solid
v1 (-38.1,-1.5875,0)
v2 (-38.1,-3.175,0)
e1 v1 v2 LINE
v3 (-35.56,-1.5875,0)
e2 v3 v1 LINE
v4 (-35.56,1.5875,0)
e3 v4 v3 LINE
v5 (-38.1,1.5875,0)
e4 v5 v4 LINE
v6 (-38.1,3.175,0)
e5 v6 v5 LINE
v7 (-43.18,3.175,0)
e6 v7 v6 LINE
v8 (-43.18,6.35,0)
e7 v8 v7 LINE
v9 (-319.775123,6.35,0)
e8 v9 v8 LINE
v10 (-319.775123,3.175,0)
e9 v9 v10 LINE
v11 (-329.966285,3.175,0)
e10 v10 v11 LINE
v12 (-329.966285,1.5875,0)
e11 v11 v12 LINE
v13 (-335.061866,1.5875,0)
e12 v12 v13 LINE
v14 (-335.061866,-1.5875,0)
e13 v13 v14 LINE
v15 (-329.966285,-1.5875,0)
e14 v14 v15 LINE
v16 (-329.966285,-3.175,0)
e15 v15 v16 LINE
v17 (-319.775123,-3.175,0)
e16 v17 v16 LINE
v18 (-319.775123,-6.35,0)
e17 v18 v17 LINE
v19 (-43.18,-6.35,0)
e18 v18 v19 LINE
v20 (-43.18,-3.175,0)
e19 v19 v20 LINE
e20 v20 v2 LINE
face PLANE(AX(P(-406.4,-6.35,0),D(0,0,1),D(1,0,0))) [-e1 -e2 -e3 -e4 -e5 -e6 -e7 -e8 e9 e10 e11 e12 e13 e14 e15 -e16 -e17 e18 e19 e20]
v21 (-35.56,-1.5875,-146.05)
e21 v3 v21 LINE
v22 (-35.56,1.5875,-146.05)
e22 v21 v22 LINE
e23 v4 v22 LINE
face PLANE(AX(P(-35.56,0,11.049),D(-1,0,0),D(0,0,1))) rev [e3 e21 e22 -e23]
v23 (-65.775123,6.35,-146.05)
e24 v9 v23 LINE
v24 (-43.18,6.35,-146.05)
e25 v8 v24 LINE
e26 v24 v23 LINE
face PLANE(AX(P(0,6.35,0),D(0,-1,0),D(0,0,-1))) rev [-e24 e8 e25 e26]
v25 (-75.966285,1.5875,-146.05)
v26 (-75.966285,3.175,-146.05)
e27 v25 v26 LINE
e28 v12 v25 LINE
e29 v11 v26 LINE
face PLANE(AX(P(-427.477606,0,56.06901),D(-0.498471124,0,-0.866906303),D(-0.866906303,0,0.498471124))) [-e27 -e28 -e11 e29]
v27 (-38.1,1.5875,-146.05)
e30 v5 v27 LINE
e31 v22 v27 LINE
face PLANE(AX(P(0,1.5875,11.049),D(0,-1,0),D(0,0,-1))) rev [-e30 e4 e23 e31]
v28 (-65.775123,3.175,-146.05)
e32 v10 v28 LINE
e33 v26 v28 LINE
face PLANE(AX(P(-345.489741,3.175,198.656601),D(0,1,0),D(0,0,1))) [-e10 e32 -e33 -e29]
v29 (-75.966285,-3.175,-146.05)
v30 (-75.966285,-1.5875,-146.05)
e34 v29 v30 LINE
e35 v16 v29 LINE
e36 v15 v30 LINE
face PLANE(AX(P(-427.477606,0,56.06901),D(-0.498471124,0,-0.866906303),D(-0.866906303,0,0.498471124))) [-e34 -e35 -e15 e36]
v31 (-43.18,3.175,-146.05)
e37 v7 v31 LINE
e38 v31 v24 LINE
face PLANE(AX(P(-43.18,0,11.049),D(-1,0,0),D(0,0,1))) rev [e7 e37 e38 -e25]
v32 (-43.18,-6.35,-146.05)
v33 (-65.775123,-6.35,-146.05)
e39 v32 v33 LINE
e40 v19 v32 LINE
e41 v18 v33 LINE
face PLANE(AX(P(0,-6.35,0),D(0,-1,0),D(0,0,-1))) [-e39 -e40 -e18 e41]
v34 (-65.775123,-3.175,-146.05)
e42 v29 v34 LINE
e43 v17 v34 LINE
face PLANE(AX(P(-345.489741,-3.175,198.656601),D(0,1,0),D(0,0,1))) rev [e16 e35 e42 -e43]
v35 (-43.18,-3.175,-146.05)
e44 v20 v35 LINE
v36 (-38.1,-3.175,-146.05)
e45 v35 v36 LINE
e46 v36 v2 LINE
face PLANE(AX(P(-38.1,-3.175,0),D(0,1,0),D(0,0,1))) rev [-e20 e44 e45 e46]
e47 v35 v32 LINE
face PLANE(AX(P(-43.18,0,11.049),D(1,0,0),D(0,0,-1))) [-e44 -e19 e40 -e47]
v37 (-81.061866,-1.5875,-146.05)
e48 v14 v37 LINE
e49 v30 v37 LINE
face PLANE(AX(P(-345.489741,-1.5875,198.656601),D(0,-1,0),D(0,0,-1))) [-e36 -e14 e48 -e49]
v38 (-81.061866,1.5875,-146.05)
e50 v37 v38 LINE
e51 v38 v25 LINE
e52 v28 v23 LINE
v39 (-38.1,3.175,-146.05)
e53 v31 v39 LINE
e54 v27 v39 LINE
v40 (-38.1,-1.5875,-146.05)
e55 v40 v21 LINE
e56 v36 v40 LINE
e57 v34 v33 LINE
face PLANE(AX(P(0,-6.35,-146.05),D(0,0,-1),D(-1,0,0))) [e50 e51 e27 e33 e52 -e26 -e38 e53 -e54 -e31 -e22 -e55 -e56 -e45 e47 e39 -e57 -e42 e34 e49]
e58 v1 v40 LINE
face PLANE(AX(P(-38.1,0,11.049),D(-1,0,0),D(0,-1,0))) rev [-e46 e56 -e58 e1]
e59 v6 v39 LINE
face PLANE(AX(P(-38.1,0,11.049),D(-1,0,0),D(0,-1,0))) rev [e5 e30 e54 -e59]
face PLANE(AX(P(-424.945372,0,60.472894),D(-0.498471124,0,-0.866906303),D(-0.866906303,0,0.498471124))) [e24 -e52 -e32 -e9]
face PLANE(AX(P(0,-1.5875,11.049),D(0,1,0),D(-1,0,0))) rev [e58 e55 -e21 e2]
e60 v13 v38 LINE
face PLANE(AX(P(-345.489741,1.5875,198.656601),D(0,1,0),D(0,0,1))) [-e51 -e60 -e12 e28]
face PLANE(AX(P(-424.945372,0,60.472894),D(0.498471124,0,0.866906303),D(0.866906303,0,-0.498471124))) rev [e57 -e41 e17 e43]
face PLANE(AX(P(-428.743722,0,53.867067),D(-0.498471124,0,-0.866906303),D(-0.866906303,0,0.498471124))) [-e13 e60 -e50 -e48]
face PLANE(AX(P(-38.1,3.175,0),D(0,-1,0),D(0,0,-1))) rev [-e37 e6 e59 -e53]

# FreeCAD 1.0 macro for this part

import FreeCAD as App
import Part
import Sketcher

V = App.Vector
Q = App.Units.Quantity

doc = App.newDocument("Part")
body = doc.addObject("PartDesign::Body", "Body")

# Sketch on XZ plane
sketch1 = body.newObject("Sketcher::SketchObject", "Sketch")
sketch1.AttachmentSupport = (doc.getObject("XZ_Plane"), [""])
sketch1.MapMode = "FlatFace"
sketch1.addGeometry([
    Part.LineSegment(V(-406, 0, 0), V(0, 0, 0)),
    Part.LineSegment(V(0, 0, 0), V(0, -146, 0)),
    Part.LineSegment(V(0, -146, 0), V(-152, -146, 0)),
    Part.LineSegment(V(-152, -146, 0), V(-406, 0, 0)),
], False)
sketch1.addConstraint([
    Sketcher.Constraint("Coincident", 0, 2, 1, 1),
    Sketcher.Constraint("Coincident", 1, 2, 2, 1),
    Sketcher.Constraint("Coincident", 2, 2, 3, 1),
    Sketcher.Constraint("Coincident", 3, 2, 0, 1),
    Sketcher.Constraint("Horizontal", 0),
    Sketcher.Constraint("Vertical", 1),
    Sketcher.Constraint("Horizontal", 2),
    Sketcher.Constraint("Coincident", 0, 2, -1, 1),
    Sketcher.Constraint("DistanceX", 0, 1, 0, 2, Q("16 in")),
    Sketcher.Constraint("DistanceX", 2, 2, 2, 1, Q("6 in")),
    Sketcher.Constraint("DistanceY", 1, 2, 1, 1, Q("5.75 in")),
])
pad1 = body.newObject("PartDesign::Pad", "Pad")
pad1.Profile = sketch1
pad1.Type = "TwoLengths"
pad1.Length = Q("0.25 in")
pad1.Length2 = Q("0.25 in")
pad1.Reversed = True

# Sketch on an angled plane
sketch2 = body.newObject("Sketcher::SketchObject", "Sketch001")
sketch2.Placement = App.Placement(V(-100.979615, 0, -175.616721), App.Rotation(V(-0.866906303, 0, 0.498471124), V(0, 1, 0), V(-0.498471124, 0, -0.866906303), "ZXY"))
sketch2.addGeometry([
    Part.LineSegment(V(59.3, 6.3, 0), V(59.3, 3.2, 0)),  # 0
    Part.LineSegment(V(59.3, 3.2, 0), V(352.3, 3.2, 0)),  # 1
    Part.LineSegment(V(352.3, 3.2, 0), V(352.3, 6.3, 0)),  # 2
    Part.LineSegment(V(352.3, 6.3, 0), V(59.3, 6.3, 0)),  # 3
    Part.LineSegment(V(59.3, -3.2, 0), V(59.3, -6.3, 0)),  # 4
    Part.LineSegment(V(59.3, -6.3, 0), V(352.3, -6.3, 0)),  # 5
    Part.LineSegment(V(352.3, -6.3, 0), V(352.3, -3.2, 0)),  # 6
    Part.LineSegment(V(352.3, -3.2, 0), V(59.3, -3.2, 0)),  # 7
], False)
sketch2.addConstraint([
    Sketcher.Constraint("Coincident", 0, 2, 1, 1),
    Sketcher.Constraint("Coincident", 1, 2, 2, 1),
    Sketcher.Constraint("Coincident", 2, 2, 3, 1),
    Sketcher.Constraint("Coincident", 3, 2, 0, 1),
    Sketcher.Constraint("Coincident", 4, 2, 5, 1),
    Sketcher.Constraint("Coincident", 5, 2, 6, 1),
    Sketcher.Constraint("Coincident", 6, 2, 7, 1),
    Sketcher.Constraint("Coincident", 7, 2, 4, 1),
    Sketcher.Constraint("Vertical", 0),
    Sketcher.Constraint("Horizontal", 1),
    Sketcher.Constraint("Vertical", 2),
    Sketcher.Constraint("Horizontal", 3),
    Sketcher.Constraint("Vertical", 4),
    Sketcher.Constraint("Horizontal", 5),
    Sketcher.Constraint("Vertical", 6),
    Sketcher.Constraint("Horizontal", 7),
    Sketcher.Constraint("Symmetric", 3, 2, 4, 2, -1),
    Sketcher.Constraint("Symmetric", 1, 2, 6, 2, -1),
    Sketcher.Constraint("DistanceY", 4, 2, 3, 2, Q("0.5 in")),
    Sketcher.Constraint("DistanceY", 0, 2, 0, 1, Q("0.125 in")),
    Sketcher.Constraint("DistanceX", 1, 1, 1, 2, 292.995909),
    Sketcher.Constraint("DistanceX", -1, 1, 1, 2, 352.310721),
])
pocket1 = body.newObject("PartDesign::Pocket", "Pocket")
pocket1.Profile = sketch2
pocket1.Length = Q("1.5 in")

# Sketch on YZ plane
sketch3 = body.newObject("Sketcher::SketchObject", "Sketch002")
sketch3.AttachmentSupport = (doc.getObject("YZ_Plane"), [""])
sketch3.MapMode = "FlatFace"
sketch3.addGeometry([
    Part.LineSegment(V(6.3, 0, 0), V(3.2, 0, 0)),  # 0
    Part.LineSegment(V(3.2, 0, 0), V(3.2, -146.1, 0)),  # 1
    Part.LineSegment(V(3.2, -146.1, 0), V(6.3, -146.1, 0)),  # 2
    Part.LineSegment(V(6.3, -146.1, 0), V(6.3, 0, 0)),  # 3
    Part.LineSegment(V(-3.2, 0, 0), V(-6.3, 0, 0)),  # 4
    Part.LineSegment(V(-6.3, 0, 0), V(-6.3, -146.1, 0)),  # 5
    Part.LineSegment(V(-6.3, -146.1, 0), V(-3.2, -146.1, 0)),  # 6
    Part.LineSegment(V(-3.2, -146.1, 0), V(-3.2, 0, 0)),  # 7
], False)
sketch3.addConstraint([
    Sketcher.Constraint("Coincident", 0, 2, 1, 1),
    Sketcher.Constraint("Coincident", 1, 2, 2, 1),
    Sketcher.Constraint("Coincident", 2, 2, 3, 1),
    Sketcher.Constraint("Coincident", 3, 2, 0, 1),
    Sketcher.Constraint("Coincident", 4, 2, 5, 1),
    Sketcher.Constraint("Coincident", 5, 2, 6, 1),
    Sketcher.Constraint("Coincident", 6, 2, 7, 1),
    Sketcher.Constraint("Coincident", 7, 2, 4, 1),
    Sketcher.Constraint("Horizontal", 0),
    Sketcher.Constraint("Vertical", 1),
    Sketcher.Constraint("Horizontal", 2),
    Sketcher.Constraint("Vertical", 3),
    Sketcher.Constraint("Horizontal", 4),
    Sketcher.Constraint("Vertical", 5),
    Sketcher.Constraint("Horizontal", 6),
    Sketcher.Constraint("Vertical", 7),
    Sketcher.Constraint("Symmetric", 3, 2, 4, 2, -1, 1),
    Sketcher.Constraint("Symmetric", 1, 2, 6, 2, -2),
    Sketcher.Constraint("PointOnObject", 0, 2, -1),
    Sketcher.Constraint("DistanceY", 1, 2, 1, 1, Q("5.75 in")),
    Sketcher.Constraint("DistanceX", 4, 2, 3, 2, Q("0.5 in")),
    Sketcher.Constraint("DistanceX", 0, 2, 0, 1, Q("0.125 in")),
])
pocket2 = body.newObject("PartDesign::Pocket", "Pocket001")
pocket2.Profile = sketch3
pocket2.Length = Q("1.5 in")

# Sketch on XZ plane
sketch4 = body.newObject("Sketcher::SketchObject", "Sketch003")
sketch4.AttachmentSupport = (doc.getObject("XZ_Plane"), [""])
sketch4.MapMode = "FlatFace"
sketch4.AttachmentOffset = App.Placement(V(0, 0, -0.25 * 25.4), App.Rotation())
sketch4.addGeometry([
    Part.LineSegment(V(-133, -113, 0), V(-76, -146, 0)),
    Part.LineSegment(V(-76, -146, 0), V(-152, -146, 0)),
    Part.LineSegment(V(-152, -146, 0), V(-133, -113, 0)),
], False)
sketch4.addConstraint([
    Sketcher.Constraint("Coincident", 0, 2, 1, 1),
    Sketcher.Constraint("Coincident", 1, 2, 2, 1),
    Sketcher.Constraint("Coincident", 2, 2, 0, 1),
    Sketcher.Constraint("Horizontal", 1),
    Sketcher.Constraint("Perpendicular", 0, 2),
    Sketcher.Constraint("DistanceX", 1, 2, -1, 1, Q("6 in")),
    Sketcher.Constraint("Distance", 2, Q("1.5 in")),
    Sketcher.Constraint("DistanceY", 0, 2, -1, 1, Q("5.75 in")),
    Sketcher.Constraint("Distance", 0, 66.26087),
])
pocket3 = body.newObject("PartDesign::Pocket", "Pocket002")
pocket3.Profile = sketch4
pocket3.Length = Q("0.125 in")
pocket3.Reversed = True

# Sketch on XZ plane
sketch5 = body.newObject("Sketcher::SketchObject", "Sketch004")
sketch5.AttachmentSupport = (doc.getObject("XZ_Plane"), [""])
sketch5.MapMode = "FlatFace"
sketch5.AttachmentOffset = App.Placement(V(0, 0, 0.25 * 25.4), App.Rotation())
sketch5.addGeometry([
    Part.LineSegment(V(-76, -146, 0), V(-133, -113, 0)),
    Part.LineSegment(V(-133, -113, 0), V(-152, -146, 0)),
    Part.LineSegment(V(-152, -146, 0), V(-76, -146, 0)),
], False)
sketch5.addConstraint([
    Sketcher.Constraint("Coincident", 0, 2, 1, 1),
    Sketcher.Constraint("Coincident", 1, 2, 2, 1),
    Sketcher.Constraint("Coincident", 2, 2, 0, 1),
    Sketcher.Constraint("Horizontal", 2),
    Sketcher.Constraint("Perpendicular", 0, 1),
    Sketcher.Constraint("DistanceX", 1, 2, -1, 1, Q("6 in")),
    Sketcher.Constraint("Distance", 1, Q("1.5 in")),
    Sketcher.Constraint("DistanceY", 1, 2, -1, 1, Q("5.75 in")),
    Sketcher.Constraint("Distance", 0, 66.26087),
])
pocket4 = body.newObject("PartDesign::Pocket", "Pocket003")
pocket4.Profile = sketch5
pocket4.Length = Q("0.125 in")

# Sketch on XY plane
sketch6 = body.newObject("Sketcher::SketchObject", "Sketch005")
sketch6.AttachmentSupport = (doc.getObject("XY_Plane"), [""])
sketch6.MapMode = "FlatFace"
sketch6.AttachmentOffset = App.Placement(V(0, 0, -5.75 * 25.4), App.Rotation())
sketch6.addGeometry([
    Part.LineSegment(V(-43.2, -3.2, 0), V(-38.1, -3.2, 0)),  # 0
    Part.LineSegment(V(-38.1, -3.2, 0), V(-38.1, -1.6, 0)),  # 1
    Part.LineSegment(V(-38.1, -1.6, 0), V(-35.6, -1.6, 0)),  # 2
    Part.LineSegment(V(-35.6, -1.6, 0), V(-35.6, 1.6, 0)),  # 3
    Part.LineSegment(V(-35.6, 1.6, 0), V(-38.1, 1.6, 0)),  # 4
    Part.LineSegment(V(-38.1, 1.6, 0), V(-38.1, 3.2, 0)),  # 5
    Part.LineSegment(V(-38.1, 3.2, 0), V(-43.2, 3.2, 0)),  # 6
    Part.LineSegment(V(-43.2, 3.2, 0), V(-43.2, 6.3, 0)),  # 7
    Part.LineSegment(V(-43.2, 6.3, 0), V(0, 6.3, 0)),  # 8
    Part.LineSegment(V(0, 6.3, 0), V(0, -6.3, 0)),  # 9
    Part.LineSegment(V(0, -6.3, 0), V(-43.2, -6.3, 0)),  # 10
    Part.LineSegment(V(-43.2, -6.3, 0), V(-43.2, -3.2, 0)),  # 11
], False)
sketch6.addConstraint([
    Sketcher.Constraint("Coincident", 0, 2, 1, 1),
    Sketcher.Constraint("Coincident", 1, 2, 2, 1),
    Sketcher.Constraint("Coincident", 2, 2, 3, 1),
    Sketcher.Constraint("Coincident", 3, 2, 4, 1),
    Sketcher.Constraint("Coincident", 4, 2, 5, 1),
    Sketcher.Constraint("Coincident", 5, 2, 6, 1),
    Sketcher.Constraint("Coincident", 6, 2, 7, 1),
    Sketcher.Constraint("Coincident", 7, 2, 8, 1),
    Sketcher.Constraint("Coincident", 8, 2, 9, 1),
    Sketcher.Constraint("Coincident", 9, 2, 10, 1),
    Sketcher.Constraint("Coincident", 10, 2, 11, 1),
    Sketcher.Constraint("Coincident", 11, 2, 0, 1),
    Sketcher.Constraint("Horizontal", 0),
    Sketcher.Constraint("Vertical", 1),
    Sketcher.Constraint("Horizontal", 2),
    Sketcher.Constraint("Vertical", 3),
    Sketcher.Constraint("Horizontal", 4),
    Sketcher.Constraint("Vertical", 5),
    Sketcher.Constraint("Horizontal", 6),
    Sketcher.Constraint("Vertical", 7),
    Sketcher.Constraint("Horizontal", 8),
    Sketcher.Constraint("Vertical", 9),
    Sketcher.Constraint("Horizontal", 10),
    Sketcher.Constraint("Vertical", 11),
    Sketcher.Constraint("Symmetric", 8, 2, 9, 2, -1, 1),
    Sketcher.Constraint("Symmetric", 1, 2, 4, 2, -1),
    Sketcher.Constraint("Symmetric", 6, 2, 11, 2, -1),
    Sketcher.Constraint("Equal", 3, 7),
    Sketcher.Constraint("DistanceX", 0, 1, 0, 2, Q("0.2 in")),
    Sketcher.Constraint("DistanceX", 2, 1, 2, 2, Q("0.1 in")),
    Sketcher.Constraint("DistanceX", 8, 1, 8, 2, Q("1.7 in")),
    Sketcher.Constraint("DistanceY", 9, 2, 9, 1, Q("0.5 in")),
    Sketcher.Constraint("DistanceY", 1, 1, 1, 2, Q("0.0625 in")),
])
pocket5 = body.newObject("PartDesign::Pocket", "Pocket004")
pocket5.Profile = sketch6
pocket5.Length = Q("6.185 in")
pocket5.Reversed = True

# Sketch on an angled plane
sketch7 = body.newObject("Sketcher::SketchObject", "Sketch006")
sketch7.Placement = App.Placement(V(-51.420385, 0, 29.566721), App.Rotation(V(0.498471124, 0, 0.866906303), V(0, 1, 0), V(-0.866906303, 0, 0.498471124), "ZXY"))
sketch7.addGeometry([
    Part.LineSegment(V(-164.5, 3.2, 0), V(-159.4, 3.2, 0)),  # 0
    Part.LineSegment(V(-159.4, 3.2, 0), V(-159.4, 6.3, 0)),  # 1
    Part.LineSegment(V(-159.4, 6.3, 0), V(-202.6, 6.3, 0)),  # 2
    Part.LineSegment(V(-202.6, 6.3, 0), V(-202.6, -6.3, 0)),  # 3
    Part.LineSegment(V(-202.6, -6.3, 0), V(-159.4, -6.3, 0)),  # 4
    Part.LineSegment(V(-159.4, -6.3, 0), V(-159.4, -3.2, 0)),  # 5
    Part.LineSegment(V(-159.4, -3.2, 0), V(-164.5, -3.2, 0)),  # 6
    Part.LineSegment(V(-164.5, -3.2, 0), V(-164.5, -1.6, 0)),  # 7
    Part.LineSegment(V(-164.5, -1.6, 0), V(-167, -1.6, 0)),  # 8
    Part.LineSegment(V(-167, -1.6, 0), V(-167, 1.6, 0)),  # 9
    Part.LineSegment(V(-167, 1.6, 0), V(-164.5, 1.6, 0)),  # 10
    Part.LineSegment(V(-164.5, 1.6, 0), V(-164.5, 3.2, 0)),  # 11
], False)
sketch7.addConstraint([
    Sketcher.Constraint("Coincident", 0, 2, 1, 1),
    Sketcher.Constraint("Coincident", 1, 2, 2, 1),
    Sketcher.Constraint("Coincident", 2, 2, 3, 1),
    Sketcher.Constraint("Coincident", 3, 2, 4, 1),
    Sketcher.Constraint("Coincident", 4, 2, 5, 1),
    Sketcher.Constraint("Coincident", 5, 2, 6, 1),
    Sketcher.Constraint("Coincident", 6, 2, 7, 1),
    Sketcher.Constraint("Coincident", 7, 2, 8, 1),
    Sketcher.Constraint("Coincident", 8, 2, 9, 1),
    Sketcher.Constraint("Coincident", 9, 2, 10, 1),
    Sketcher.Constraint("Coincident", 10, 2, 11, 1),
    Sketcher.Constraint("Coincident", 11, 2, 0, 1),
    Sketcher.Constraint("Horizontal", 0),
    Sketcher.Constraint("Vertical", 1),
    Sketcher.Constraint("Horizontal", 2),
    Sketcher.Constraint("Vertical", 3),
    Sketcher.Constraint("Horizontal", 4),
    Sketcher.Constraint("Vertical", 5),
    Sketcher.Constraint("Horizontal", 6),
    Sketcher.Constraint("Vertical", 7),
    Sketcher.Constraint("Horizontal", 8),
    Sketcher.Constraint("Vertical", 9),
    Sketcher.Constraint("Horizontal", 10),
    Sketcher.Constraint("Vertical", 11),
    Sketcher.Constraint("Symmetric", 1, 2, 4, 2, -1),
    Sketcher.Constraint("Symmetric", 7, 2, 10, 2, -1),
    Sketcher.Constraint("Equal", 1, 5),
    Sketcher.Constraint("Equal", 5, 9),
    Sketcher.Constraint("DistanceX", 0, 1, 0, 2, Q("0.2 in")),
    Sketcher.Constraint("DistanceX", 2, 2, 2, 1, Q("1.7 in")),
    Sketcher.Constraint("DistanceX", 8, 2, 8, 1, Q("0.1 in")),
    Sketcher.Constraint("DistanceY", 3, 2, 3, 1, Q("0.5 in")),
    Sketcher.Constraint("DistanceY", 1, 1, 1, 2, Q("0.125 in")),
    Sketcher.Constraint("DistanceX", 0, 2, -1, 1, 159.398665),
])
pocket6 = body.newObject("PartDesign::Pocket", "Pocket005")
pocket6.Profile = sketch7
pocket6.Type = "ThroughAll"
pocket6.Midplane = True

doc.recompute()
